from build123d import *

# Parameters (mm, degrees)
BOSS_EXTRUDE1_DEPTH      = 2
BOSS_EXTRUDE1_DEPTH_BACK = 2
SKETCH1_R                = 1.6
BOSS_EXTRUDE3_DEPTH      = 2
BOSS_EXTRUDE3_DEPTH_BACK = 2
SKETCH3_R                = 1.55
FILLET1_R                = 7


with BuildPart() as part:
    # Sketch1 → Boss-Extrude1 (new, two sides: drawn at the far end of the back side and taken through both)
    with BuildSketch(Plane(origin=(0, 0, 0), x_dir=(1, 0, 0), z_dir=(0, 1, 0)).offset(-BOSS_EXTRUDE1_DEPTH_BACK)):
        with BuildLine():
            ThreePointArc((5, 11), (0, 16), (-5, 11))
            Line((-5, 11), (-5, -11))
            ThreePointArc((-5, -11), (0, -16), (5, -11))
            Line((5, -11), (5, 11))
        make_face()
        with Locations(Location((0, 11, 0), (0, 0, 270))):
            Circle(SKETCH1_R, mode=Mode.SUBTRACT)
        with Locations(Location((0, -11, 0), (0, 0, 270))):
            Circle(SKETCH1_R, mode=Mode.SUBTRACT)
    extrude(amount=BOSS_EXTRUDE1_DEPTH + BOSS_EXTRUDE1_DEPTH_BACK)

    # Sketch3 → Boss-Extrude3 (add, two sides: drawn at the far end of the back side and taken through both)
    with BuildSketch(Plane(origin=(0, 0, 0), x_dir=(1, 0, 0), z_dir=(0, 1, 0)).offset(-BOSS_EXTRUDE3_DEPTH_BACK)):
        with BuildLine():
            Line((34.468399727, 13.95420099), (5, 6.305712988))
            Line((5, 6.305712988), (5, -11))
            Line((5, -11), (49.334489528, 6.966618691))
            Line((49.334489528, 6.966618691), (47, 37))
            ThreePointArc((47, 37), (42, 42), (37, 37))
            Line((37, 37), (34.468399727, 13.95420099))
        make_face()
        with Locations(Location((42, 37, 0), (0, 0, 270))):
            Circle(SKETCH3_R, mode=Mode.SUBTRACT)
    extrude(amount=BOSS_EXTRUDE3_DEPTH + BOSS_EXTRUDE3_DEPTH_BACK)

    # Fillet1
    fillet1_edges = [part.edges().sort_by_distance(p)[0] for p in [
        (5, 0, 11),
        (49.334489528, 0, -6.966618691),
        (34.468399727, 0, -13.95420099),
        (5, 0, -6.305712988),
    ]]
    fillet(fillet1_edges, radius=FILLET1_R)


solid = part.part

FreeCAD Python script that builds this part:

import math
import FreeCAD as App
import Part
import Sketcher
from FreeCAD import Vector
Q = App.Units.Quantity


def edges_at(feature, points):
    """Names of the edges that pass closest to the given points."""
    edges = feature.Shape.Edges
    near = lambda p: min(range(len(edges)), key=lambda i: edges[i].distToShape(Part.Vertex(*p))[0])
    return sorted({f"Edge{near(p) + 1}" for p in points})

doc = App.newDocument("Part")
body = doc.addObject("PartDesign::Body", "Body")

# Sketch on XZ plane
sketch1 = body.newObject("Sketcher::SketchObject", "Sketch")
sketch1.AttachmentSupport = (doc.getObject("XZ_Plane"), [""])
sketch1.MapMode = "FlatFace"
sketch1.addGeometry([
    Part.ArcOfCircle(Part.Circle(Vector(0, -11, 0), Vector(0, 0, 1), 5), math.radians(180), math.radians(360)),  # 0
    Part.LineSegment(Vector(-5, -11, 0), Vector(-5, 11, 0)),  # 1
    Part.ArcOfCircle(Part.Circle(Vector(0, 11, 0), Vector(0, 0, 1), 5), math.radians(0), math.radians(180)),  # 2
    Part.LineSegment(Vector(5, 11, 0), Vector(5, -11, 0)),  # 3
    Part.Circle(Vector(0, 11, 0), Vector(0, 0, 1), 1.6),  # 4
    Part.Circle(Vector(0, -11, 0), Vector(0, 0, 1), 1.6),  # 5
], False)
sketch1.addConstraint([
    Sketcher.Constraint("Tangent", 0, 1, 1, 1),
    Sketcher.Constraint("Tangent", 1, 2, 2, 2),
    Sketcher.Constraint("Tangent", 2, 1, 3, 1),
    Sketcher.Constraint("Tangent", 3, 2, 0, 2),
    Sketcher.Constraint("Vertical", 1),
    Sketcher.Constraint("Vertical", 3),
    Sketcher.Constraint("Coincident", 4, 3, 2, 3),
    Sketcher.Constraint("Coincident", 5, 3, 0, 3),
    Sketcher.Constraint("Equal", 4, 5),
    Sketcher.Constraint("Symmetric", 0, 3, 2, 3, -1, 1),
    Sketcher.Constraint("Radius", 0, 5.0),
    Sketcher.Constraint("Diameter", 4, 3.2),
    Sketcher.Constraint("DistanceY", 1, 1, 1, 2, 22.0),
])
pad1 = body.newObject("PartDesign::Pad", "Pad")
pad1.Profile = sketch1
pad1.Type = "TwoLengths"
pad1.Length = 2
pad1.Length2 = 2
pad1.Reversed = True

# Sketch on XZ plane
sketch2 = body.newObject("Sketcher::SketchObject", "Sketch001")
sketch2.AttachmentSupport = (doc.getObject("XZ_Plane"), [""])
sketch2.MapMode = "FlatFace"
sketch2.addGeometry([
    Part.LineSegment(Vector(34.5, -14, 0), Vector(5, -6.3, 0)),  # 0
    Part.LineSegment(Vector(5, -6.3, 0), Vector(5, 11, 0)),  # 1
    Part.LineSegment(Vector(5, 11, 0), Vector(49.3, -7, 0)),  # 2
    Part.LineSegment(Vector(49.3, -7, 0), Vector(47, -37, 0)),  # 3
    Part.ArcOfCircle(Part.Circle(Vector(42, -37, 0), Vector(0, 0, 1), 5), math.radians(180), math.radians(360)),  # 4
    Part.LineSegment(Vector(37, -37, 0), Vector(34.5, -14, 0)),  # 5
    Part.Circle(Vector(42, -37, 0), Vector(0, 0, 1), 1.6),  # 6
], False)
sketch2.addConstraint([
    Sketcher.Constraint("Coincident", 0, 2, 1, 1),
    Sketcher.Constraint("Coincident", 1, 2, 2, 1),
    Sketcher.Constraint("Coincident", 2, 2, 3, 1),
    Sketcher.Constraint("Coincident", 3, 2, 4, 2),
    Sketcher.Constraint("Coincident", 4, 1, 5, 1),
    Sketcher.Constraint("Coincident", 5, 2, 0, 1),
    Sketcher.Constraint("Vertical", 1),
    Sketcher.Constraint("Coincident", 6, 3, 4, 3),
    Sketcher.Constraint("Horizontal", 6, 3, 3, 2),
    Sketcher.Constraint("Horizontal", 3, 2, 4, 1),
    Sketcher.Constraint("Radius", 4, 5.0),
    Sketcher.Constraint("Diameter", 6, 3.1),
    Sketcher.Constraint("DistanceX", -1, 1, 4, 3, 42.0),
    Sketcher.Constraint("DistanceY", 4, 3, -1, 1, 37.0),
    Sketcher.Constraint("DistanceX", -1, 1, 0, 2, 5.0),
    Sketcher.Constraint("DistanceY", -1, 1, 1, 2, 11.0),
    Sketcher.Constraint("Angle", 0, Q("165.450001 deg")),
    Sketcher.Constraint("Distance", 0, 30.444802),
    Sketcher.Constraint("DistanceY", 5, 2, -1, 1, 13.954201),
    Sketcher.Constraint("DistanceX", -1, 1, 2, 2, 49.33449),
    Sketcher.Constraint("DistanceY", 2, 2, -1, 1, 6.966619),
])
pad2 = body.newObject("PartDesign::Pad", "Pad001")
pad2.Profile = sketch2
pad2.Type = "TwoLengths"
pad2.Length = 2
pad2.Length2 = 2
pad2.Reversed = True
doc.recompute()

fillet = body.newObject("PartDesign::Fillet", "Fillet")
fillet.Base = (pad2, edges_at(pad2, [
    (5, 0, 11),
    (49.334, 0, -6.967),
    (34.468, 0, -13.954),
    (5, 0, -6.306),
]))
fillet.Radius = 7

doc.recompute()
